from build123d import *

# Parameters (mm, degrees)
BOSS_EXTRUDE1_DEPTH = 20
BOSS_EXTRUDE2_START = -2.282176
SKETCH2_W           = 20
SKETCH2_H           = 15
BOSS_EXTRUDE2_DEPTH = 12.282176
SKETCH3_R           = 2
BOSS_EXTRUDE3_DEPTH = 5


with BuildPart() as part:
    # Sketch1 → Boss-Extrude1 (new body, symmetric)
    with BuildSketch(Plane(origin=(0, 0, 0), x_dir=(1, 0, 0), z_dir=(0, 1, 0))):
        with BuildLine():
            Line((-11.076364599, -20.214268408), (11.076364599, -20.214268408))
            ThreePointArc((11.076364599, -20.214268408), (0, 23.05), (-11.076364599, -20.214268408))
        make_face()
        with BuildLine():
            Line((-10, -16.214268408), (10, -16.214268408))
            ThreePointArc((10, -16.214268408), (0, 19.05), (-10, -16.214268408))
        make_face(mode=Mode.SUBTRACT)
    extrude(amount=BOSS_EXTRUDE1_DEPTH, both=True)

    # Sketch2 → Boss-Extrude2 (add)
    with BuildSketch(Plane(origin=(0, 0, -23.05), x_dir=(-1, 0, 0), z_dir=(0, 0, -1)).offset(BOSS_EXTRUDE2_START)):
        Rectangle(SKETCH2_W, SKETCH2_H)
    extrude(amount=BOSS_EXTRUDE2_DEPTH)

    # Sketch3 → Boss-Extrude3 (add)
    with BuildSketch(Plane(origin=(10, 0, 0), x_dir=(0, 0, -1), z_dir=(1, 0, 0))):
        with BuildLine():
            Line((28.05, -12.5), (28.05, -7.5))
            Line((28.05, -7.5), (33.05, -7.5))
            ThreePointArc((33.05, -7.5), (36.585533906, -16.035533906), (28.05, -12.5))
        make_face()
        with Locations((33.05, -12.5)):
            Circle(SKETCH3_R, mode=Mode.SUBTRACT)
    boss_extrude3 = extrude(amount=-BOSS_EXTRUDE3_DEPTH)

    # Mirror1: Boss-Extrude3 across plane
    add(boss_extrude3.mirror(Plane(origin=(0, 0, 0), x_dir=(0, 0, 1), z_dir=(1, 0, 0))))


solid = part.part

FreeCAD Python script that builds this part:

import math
import FreeCAD as App
import Part
import Sketcher
Q = App.Units.Quantity

doc = App.newDocument("Part")
body = doc.addObject("PartDesign::Body", "Body")

sketch1 = body.newObject("Sketcher::SketchObject", "Sketch")
sketch1.AttachmentSupport = (doc.getObject("XZ_Plane"), [""])
sketch1.MapMode = "FlatFace"
sketch1.addGeometry(Part.LineSegment(App.Vector(-11.076365, 20.214268, 0), App.Vector(11.076365, 20.214268, 0)), False)
sketch1.addGeometry(Part.ArcOfCircle(Part.Circle(App.Vector(0, 0, 0), App.Vector(0, 0, 1), 23.05), math.radians(118.720443), math.radians(421.279557)), False)
sketch1.addGeometry(Part.LineSegment(App.Vector(10, 16.214268, 0), App.Vector(-10, 16.214268, 0)), False)
sketch1.addGeometry(Part.ArcOfCircle(Part.Circle(App.Vector(0, 0, 0), App.Vector(0, 0, 1), 19.05), math.radians(121.663826), math.radians(418.336174)), False)
sketch1.addConstraint(Sketcher.Constraint("Coincident", 0, 1, 1, 1))
sketch1.addConstraint(Sketcher.Constraint("Coincident", 1, 2, 0, 2))
sketch1.addConstraint(Sketcher.Constraint("Coincident", 2, 1, 3, 2))
sketch1.addConstraint(Sketcher.Constraint("Coincident", 3, 1, 2, 2))
sketch1.addConstraint(Sketcher.Constraint("Horizontal", 0))
sketch1.addConstraint(Sketcher.Constraint("Horizontal", 2))
sketch1.addConstraint(Sketcher.Constraint("Coincident", 1, 3, -1, 1))
sketch1.addConstraint(Sketcher.Constraint("Coincident", 3, 3, -1, 1))
sketch1.addConstraint(Sketcher.Constraint("DistanceX", 2, 2, 2, 1, Q("20 mm")))
sketch1.addConstraint(Sketcher.Constraint("Radius", 1, Q("23.05 mm")))
sketch1.addConstraint(Sketcher.Constraint("Radius", 3, Q("19.05 mm")))
sketch1.addConstraint(Sketcher.Constraint("DistanceY", 2, 1, 1, 2, Q("4 mm")))
pad1 = body.newObject("PartDesign::Pad", "Pad")
pad1.Profile = sketch1
pad1.Length = 40
pad1.Midplane = True

sketch2 = body.newObject("Sketcher::SketchObject", "Sketch001")
sketch2.AttachmentSupport = (doc.getObject("XY_Plane"), [""])
sketch2.MapMode = "FlatFace"
sketch2.AttachmentOffset = App.Placement(App.Vector(0, 0, -20.767824), App.Rotation())
sketch2.addGeometry(Part.LineSegment(App.Vector(10, 7.5, 0), App.Vector(10, -7.5, 0)), False)
sketch2.addGeometry(Part.LineSegment(App.Vector(10, -7.5, 0), App.Vector(-10, -7.5, 0)), False)
sketch2.addGeometry(Part.LineSegment(App.Vector(-10, -7.5, 0), App.Vector(-10, 7.5, 0)), False)
sketch2.addGeometry(Part.LineSegment(App.Vector(-10, 7.5, 0), App.Vector(10, 7.5, 0)), False)
sketch2.addConstraint(Sketcher.Constraint("Coincident", 0, 2, 1, 1))
sketch2.addConstraint(Sketcher.Constraint("Coincident", 1, 2, 2, 1))
sketch2.addConstraint(Sketcher.Constraint("Coincident", 2, 2, 3, 1))
sketch2.addConstraint(Sketcher.Constraint("Coincident", 3, 2, 0, 1))
sketch2.addConstraint(Sketcher.Constraint("Vertical", 0))
sketch2.addConstraint(Sketcher.Constraint("Horizontal", 1))
sketch2.addConstraint(Sketcher.Constraint("Vertical", 2))
sketch2.addConstraint(Sketcher.Constraint("Horizontal", 3))
sketch2.addConstraint(Sketcher.Constraint("Symmetric", 0, 2, 2, 2, -1, 1))
sketch2.addConstraint(Sketcher.Constraint("DistanceX", 1, 2, 1, 1, Q("20 mm")))
sketch2.addConstraint(Sketcher.Constraint("DistanceY", 0, 2, 0, 1, Q("15 mm")))
pad2 = body.newObject("PartDesign::Pad", "Pad001")
pad2.Profile = sketch2
pad2.Length = 12.282176
pad2.Reversed = True

sketch3 = body.newObject("Sketcher::SketchObject", "Sketch002")
sketch3.AttachmentSupport = (doc.getObject("YZ_Plane"), [""])
sketch3.MapMode = "FlatFace"
sketch3.AttachmentOffset = App.Placement(App.Vector(0, 0, 10), App.Rotation())
sketch3.addGeometry(Part.LineSegment(App.Vector(-7.5, -28.05, 0), App.Vector(-12.5, -28.05, 0)), False)
sketch3.addGeometry(Part.ArcOfCircle(Part.Circle(App.Vector(-12.5, -33.05, 0), App.Vector(0, 0, 1), 5), math.radians(90), math.radians(360)), False)
sketch3.addGeometry(Part.LineSegment(App.Vector(-7.5, -33.05, 0), App.Vector(-7.5, -28.05, 0)), False)
sketch3.addGeometry(Part.Circle(App.Vector(-12.5, -33.05, 0), App.Vector(0, 0, 1), 2), False)
sketch3.addConstraint(Sketcher.Constraint("Tangent", 0, 2, 1, 1))
sketch3.addConstraint(Sketcher.Constraint("Tangent", 1, 2, 2, 1))
sketch3.addConstraint(Sketcher.Constraint("Coincident", 2, 2, 0, 1))
sketch3.addConstraint(Sketcher.Constraint("Horizontal", 0))
sketch3.addConstraint(Sketcher.Constraint("Vertical", 2))
sketch3.addConstraint(Sketcher.Constraint("Coincident", 3, 3, 1, 3))
sketch3.addConstraint(Sketcher.Constraint("Diameter", 3, Q("4 mm")))
sketch3.addConstraint(Sketcher.Constraint("Radius", 1, Q("5 mm")))
sketch3.addConstraint(Sketcher.Constraint("DistanceX", 1, 3, -1, 1, Q("12.5 mm")))
sketch3.addConstraint(Sketcher.Constraint("DistanceY", 1, 3, -1, 1, Q("33.05 mm")))
pad3 = body.newObject("PartDesign::Pad", "Pad002")
pad3.Profile = sketch3
pad3.Length = 5
pad3.Reversed = True
doc.recompute()

mirrored = body.newObject("PartDesign::Mirrored", "Mirrored")
mirrored.Originals = [pad3]
mirrored.MirrorPlane = (doc.getObject("YZ_Plane"), [""])
body.Tip = mirrored

doc.recompute()
